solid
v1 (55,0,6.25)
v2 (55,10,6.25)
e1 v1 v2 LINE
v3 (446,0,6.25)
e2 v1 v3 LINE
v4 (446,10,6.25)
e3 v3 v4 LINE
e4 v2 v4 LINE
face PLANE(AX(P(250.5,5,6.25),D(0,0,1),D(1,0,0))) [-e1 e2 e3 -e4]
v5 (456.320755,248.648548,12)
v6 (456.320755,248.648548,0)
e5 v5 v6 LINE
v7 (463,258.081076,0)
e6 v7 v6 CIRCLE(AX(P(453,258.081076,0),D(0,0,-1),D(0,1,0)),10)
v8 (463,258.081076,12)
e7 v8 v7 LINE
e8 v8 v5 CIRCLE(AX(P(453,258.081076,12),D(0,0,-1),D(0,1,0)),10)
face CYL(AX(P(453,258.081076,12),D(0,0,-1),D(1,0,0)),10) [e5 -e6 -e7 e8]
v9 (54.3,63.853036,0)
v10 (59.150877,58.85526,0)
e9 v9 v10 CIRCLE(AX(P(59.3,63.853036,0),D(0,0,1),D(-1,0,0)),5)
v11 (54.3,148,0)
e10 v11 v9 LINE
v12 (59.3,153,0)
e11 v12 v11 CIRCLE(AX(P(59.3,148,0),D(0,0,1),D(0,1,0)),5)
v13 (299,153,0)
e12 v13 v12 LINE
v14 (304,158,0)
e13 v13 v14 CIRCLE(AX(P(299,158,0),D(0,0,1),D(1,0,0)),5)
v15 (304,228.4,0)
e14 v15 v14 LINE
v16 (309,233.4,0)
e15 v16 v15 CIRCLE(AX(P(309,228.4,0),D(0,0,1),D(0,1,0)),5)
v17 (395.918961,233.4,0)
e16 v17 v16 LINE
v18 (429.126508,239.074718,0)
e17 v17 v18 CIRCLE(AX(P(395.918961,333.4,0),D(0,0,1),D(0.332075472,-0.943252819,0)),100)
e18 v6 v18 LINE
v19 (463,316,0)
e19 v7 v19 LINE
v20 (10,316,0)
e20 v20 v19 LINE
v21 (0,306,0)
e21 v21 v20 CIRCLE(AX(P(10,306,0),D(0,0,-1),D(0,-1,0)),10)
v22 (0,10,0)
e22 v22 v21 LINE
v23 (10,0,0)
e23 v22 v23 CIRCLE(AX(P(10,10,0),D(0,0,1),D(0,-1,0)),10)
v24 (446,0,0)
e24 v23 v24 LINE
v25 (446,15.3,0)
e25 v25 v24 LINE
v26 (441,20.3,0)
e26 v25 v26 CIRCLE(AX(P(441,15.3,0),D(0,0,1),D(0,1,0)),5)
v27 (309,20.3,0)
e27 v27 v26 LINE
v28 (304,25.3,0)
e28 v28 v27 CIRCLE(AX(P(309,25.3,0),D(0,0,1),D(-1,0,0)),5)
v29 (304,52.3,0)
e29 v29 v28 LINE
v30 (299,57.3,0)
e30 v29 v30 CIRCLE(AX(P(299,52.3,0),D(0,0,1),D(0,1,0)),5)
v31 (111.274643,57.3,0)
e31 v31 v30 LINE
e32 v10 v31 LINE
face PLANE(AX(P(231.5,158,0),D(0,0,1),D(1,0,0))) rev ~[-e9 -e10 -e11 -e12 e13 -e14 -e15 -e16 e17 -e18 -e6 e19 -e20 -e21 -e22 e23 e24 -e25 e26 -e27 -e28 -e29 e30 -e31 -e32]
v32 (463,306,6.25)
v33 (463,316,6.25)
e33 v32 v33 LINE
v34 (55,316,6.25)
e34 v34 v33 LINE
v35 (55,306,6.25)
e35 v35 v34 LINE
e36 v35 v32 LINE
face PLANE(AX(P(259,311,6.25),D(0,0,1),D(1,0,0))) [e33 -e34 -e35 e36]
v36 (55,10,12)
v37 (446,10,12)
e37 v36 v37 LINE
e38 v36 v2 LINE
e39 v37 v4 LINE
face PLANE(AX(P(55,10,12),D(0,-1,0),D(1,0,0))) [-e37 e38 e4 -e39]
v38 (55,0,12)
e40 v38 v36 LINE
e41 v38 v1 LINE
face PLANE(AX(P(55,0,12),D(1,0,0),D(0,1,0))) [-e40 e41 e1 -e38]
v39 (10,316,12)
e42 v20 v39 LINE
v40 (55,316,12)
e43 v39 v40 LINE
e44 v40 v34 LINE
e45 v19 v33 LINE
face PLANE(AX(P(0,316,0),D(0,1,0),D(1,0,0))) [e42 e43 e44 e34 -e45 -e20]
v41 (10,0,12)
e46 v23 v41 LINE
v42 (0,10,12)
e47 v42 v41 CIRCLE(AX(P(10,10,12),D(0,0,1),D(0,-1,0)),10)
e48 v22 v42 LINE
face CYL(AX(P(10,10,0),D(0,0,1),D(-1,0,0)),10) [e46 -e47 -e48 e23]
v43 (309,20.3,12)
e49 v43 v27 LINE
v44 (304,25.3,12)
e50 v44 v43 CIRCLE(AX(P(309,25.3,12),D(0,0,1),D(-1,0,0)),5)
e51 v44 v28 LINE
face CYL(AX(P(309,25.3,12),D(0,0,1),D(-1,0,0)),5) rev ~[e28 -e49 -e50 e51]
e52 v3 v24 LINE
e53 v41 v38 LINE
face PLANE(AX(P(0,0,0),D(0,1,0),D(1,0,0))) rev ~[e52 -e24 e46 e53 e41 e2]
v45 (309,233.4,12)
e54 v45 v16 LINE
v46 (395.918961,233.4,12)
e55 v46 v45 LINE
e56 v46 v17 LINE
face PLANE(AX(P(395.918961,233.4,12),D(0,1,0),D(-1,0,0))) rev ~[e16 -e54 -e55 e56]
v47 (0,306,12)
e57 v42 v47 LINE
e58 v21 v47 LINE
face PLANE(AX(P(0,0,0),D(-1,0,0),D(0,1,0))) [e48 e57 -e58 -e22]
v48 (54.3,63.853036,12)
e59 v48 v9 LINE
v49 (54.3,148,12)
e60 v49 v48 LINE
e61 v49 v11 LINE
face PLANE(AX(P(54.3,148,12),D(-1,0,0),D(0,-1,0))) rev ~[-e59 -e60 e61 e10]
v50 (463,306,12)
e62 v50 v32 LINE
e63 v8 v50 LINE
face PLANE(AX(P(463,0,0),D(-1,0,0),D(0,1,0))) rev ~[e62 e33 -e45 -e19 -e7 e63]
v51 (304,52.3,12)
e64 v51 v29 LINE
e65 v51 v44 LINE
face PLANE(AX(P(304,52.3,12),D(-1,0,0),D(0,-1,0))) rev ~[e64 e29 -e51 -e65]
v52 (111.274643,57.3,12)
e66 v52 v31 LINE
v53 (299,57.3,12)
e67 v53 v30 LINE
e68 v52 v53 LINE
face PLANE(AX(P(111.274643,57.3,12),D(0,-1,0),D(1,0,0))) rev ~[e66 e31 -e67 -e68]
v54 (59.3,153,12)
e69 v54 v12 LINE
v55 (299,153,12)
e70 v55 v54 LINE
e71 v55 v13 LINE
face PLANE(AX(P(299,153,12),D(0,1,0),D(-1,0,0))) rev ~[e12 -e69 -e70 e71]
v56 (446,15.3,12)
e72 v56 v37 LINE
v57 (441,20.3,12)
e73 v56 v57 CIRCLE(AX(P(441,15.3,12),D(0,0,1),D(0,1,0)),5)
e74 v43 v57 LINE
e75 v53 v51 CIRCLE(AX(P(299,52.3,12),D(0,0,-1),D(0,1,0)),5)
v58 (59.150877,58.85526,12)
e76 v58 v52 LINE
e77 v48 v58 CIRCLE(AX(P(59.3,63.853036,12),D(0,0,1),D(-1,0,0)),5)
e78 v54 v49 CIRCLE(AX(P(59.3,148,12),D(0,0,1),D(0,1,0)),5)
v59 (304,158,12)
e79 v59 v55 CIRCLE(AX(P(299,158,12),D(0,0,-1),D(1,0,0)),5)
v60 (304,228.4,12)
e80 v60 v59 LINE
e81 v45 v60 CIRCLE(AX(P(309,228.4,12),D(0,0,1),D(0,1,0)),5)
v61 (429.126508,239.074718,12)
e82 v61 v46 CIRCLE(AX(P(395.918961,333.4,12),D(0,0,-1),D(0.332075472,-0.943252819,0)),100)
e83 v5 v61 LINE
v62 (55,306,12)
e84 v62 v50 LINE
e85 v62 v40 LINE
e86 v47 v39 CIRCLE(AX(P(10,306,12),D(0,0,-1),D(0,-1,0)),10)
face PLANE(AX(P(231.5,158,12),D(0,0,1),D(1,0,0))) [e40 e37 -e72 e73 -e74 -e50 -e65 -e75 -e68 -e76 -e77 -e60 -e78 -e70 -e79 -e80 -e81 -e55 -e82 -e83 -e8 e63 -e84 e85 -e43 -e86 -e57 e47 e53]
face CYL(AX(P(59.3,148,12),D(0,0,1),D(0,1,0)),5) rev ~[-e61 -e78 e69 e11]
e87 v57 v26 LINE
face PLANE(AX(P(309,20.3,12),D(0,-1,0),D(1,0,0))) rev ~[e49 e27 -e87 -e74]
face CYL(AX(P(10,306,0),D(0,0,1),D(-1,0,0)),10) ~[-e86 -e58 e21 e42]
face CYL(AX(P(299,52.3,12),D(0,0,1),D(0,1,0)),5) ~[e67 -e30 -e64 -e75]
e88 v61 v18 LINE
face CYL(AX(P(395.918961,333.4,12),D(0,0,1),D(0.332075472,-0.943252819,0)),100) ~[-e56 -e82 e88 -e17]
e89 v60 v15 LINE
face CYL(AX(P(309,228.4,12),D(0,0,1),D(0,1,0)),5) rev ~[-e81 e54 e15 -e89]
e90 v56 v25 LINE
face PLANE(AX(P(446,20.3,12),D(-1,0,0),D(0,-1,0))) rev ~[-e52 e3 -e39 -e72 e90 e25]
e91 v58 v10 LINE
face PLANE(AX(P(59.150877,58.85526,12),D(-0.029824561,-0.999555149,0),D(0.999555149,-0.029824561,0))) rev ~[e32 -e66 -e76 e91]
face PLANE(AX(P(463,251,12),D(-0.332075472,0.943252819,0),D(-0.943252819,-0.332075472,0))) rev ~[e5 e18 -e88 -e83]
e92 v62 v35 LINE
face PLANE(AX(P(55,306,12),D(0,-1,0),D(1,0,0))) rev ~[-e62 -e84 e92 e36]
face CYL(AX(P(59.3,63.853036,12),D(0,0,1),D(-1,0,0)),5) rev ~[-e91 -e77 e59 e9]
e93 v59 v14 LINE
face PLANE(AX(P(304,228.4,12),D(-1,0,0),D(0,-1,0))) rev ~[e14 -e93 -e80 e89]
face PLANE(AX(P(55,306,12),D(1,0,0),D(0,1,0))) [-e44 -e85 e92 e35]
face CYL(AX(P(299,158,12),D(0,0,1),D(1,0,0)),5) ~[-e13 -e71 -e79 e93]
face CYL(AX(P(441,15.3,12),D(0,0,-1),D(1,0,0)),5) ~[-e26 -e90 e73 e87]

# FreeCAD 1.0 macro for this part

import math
import FreeCAD as App
import Part
import Sketcher
from FreeCAD import Vector
Q = App.Units.Quantity


def edges_at(feature, points):
    """Names of the edges that pass closest to the given points."""
    edges = feature.Shape.Edges
    near = lambda p: min(range(len(edges)), key=lambda i: edges[i].distToShape(Part.Vertex(*p))[0])
    return sorted({f"Edge{near(p) + 1}" for p in points})


def add_polygon(sketch, points):
    """Adds a closed chain of lines whose ends are joined by coincident constraints."""
    first, n = sketch.GeometryCount, len(points)
    for a, b in zip(points, points[1:] + points[:1]):
        sketch.addGeometry(Part.LineSegment(App.Vector(*a, 0), App.Vector(*b, 0)), False)
    for i in range(n):
        sketch.addConstraint(Sketcher.Constraint("Coincident", first + i, 2, first + (i + 1) % n, 1))

doc = App.newDocument("Part")
body = doc.addObject("PartDesign::Body", "Body")

sketch1 = body.newObject("Sketcher::SketchObject", "Sketch")
sketch1.AttachmentSupport = (doc.getObject("XY_Plane"), [""])
sketch1.MapMode = "FlatFace"
add_polygon(sketch1, [(0, 316), (0, 0), (463, 0), (463, 316)])
sketch1.addConstraint([
    Sketcher.Constraint("Vertical", 0),
    Sketcher.Constraint("Horizontal", 1),
    Sketcher.Constraint("Vertical", 2),
    Sketcher.Constraint("Horizontal", 3),
    Sketcher.Constraint("Coincident", 0, 2, -1, 1),
    Sketcher.Constraint("DistanceX", 1, 1, 1, 2, Q("463 mm")),
    Sketcher.Constraint("DistanceY", 0, 2, 0, 1, Q("316 mm")),
])
pad1 = body.newObject("PartDesign::Pad", "Pad")
pad1.Profile = sketch1
pad1.Length = 12

sketch2 = body.newObject("Sketcher::SketchObject", "Sketch001")
sketch2.AttachmentSupport = (doc.getObject("XY_Plane"), [""])
sketch2.MapMode = "FlatFace"
sketch2.AttachmentOffset = App.Placement(Vector(0, 0, 12), App.Rotation())
sketch2.addGeometry([
    Part.LineSegment(Vector(396, 233, 0), Vector(309, 233, 0)),
    Part.ArcOfCircle(Part.Circle(Vector(309, 228, 0), Vector(0, 0, 1), 5), math.radians(90), math.radians(180)),
    Part.LineSegment(Vector(304, 228, 0), Vector(304, 158, 0)),
    Part.ArcOfCircle(Part.Circle(Vector(299, 158, 0), Vector(0, 0, 1), 5), math.radians(-90), math.radians(0)),
    Part.LineSegment(Vector(299, 153, 0), Vector(59, 153, 0)),
    Part.ArcOfCircle(Part.Circle(Vector(59, 148, 0), Vector(0, 0, 1), 5), math.radians(90), math.radians(180)),
    Part.LineSegment(Vector(54, 148, 0), Vector(54, 64, 0)),
    Part.ArcOfCircle(Part.Circle(Vector(59, 64, 0), Vector(0, 0, 1), 5), math.radians(180), math.radians(268)),
    Part.LineSegment(Vector(59, 59, 0), Vector(111, 57, 0)),
    Part.LineSegment(Vector(111, 57, 0), Vector(299, 57, 0)),
    Part.ArcOfCircle(Part.Circle(Vector(299, 52, 0), Vector(0, 0, 1), 5), math.radians(0), math.radians(90)),
    Part.LineSegment(Vector(304, 52, 0), Vector(304, 25, 0)),
    Part.ArcOfCircle(Part.Circle(Vector(309, 25, 0), Vector(0, 0, 1), 5), math.radians(180), math.radians(270)),
    Part.LineSegment(Vector(309, 20, 0), Vector(446, 20, 0)),
    Part.LineSegment(Vector(446, 20, 0), Vector(446, 0, 0)),
    Part.LineSegment(Vector(446, 0, 0), Vector(463, 0, 0)),
    Part.LineSegment(Vector(463, 0, 0), Vector(463, 251, 0)),
    Part.LineSegment(Vector(463, 251, 0), Vector(429, 239, 0)),
    Part.ArcOfCircle(Part.Circle(Vector(396, 333, 0), Vector(0, 0, 1), 100), math.radians(-90), math.radians(-70.61)),
], False)
sketch2.addConstraint([
    Sketcher.Constraint("Tangent", 0, 2, 1, 1),
    Sketcher.Constraint("Tangent", 1, 2, 2, 1),
    Sketcher.Constraint("Tangent", 2, 2, 3, 2),
    Sketcher.Constraint("Tangent", 3, 1, 4, 1),
    Sketcher.Constraint("Tangent", 4, 2, 5, 1),
    Sketcher.Constraint("Tangent", 5, 2, 6, 1),
    Sketcher.Constraint("Tangent", 6, 2, 7, 1),
    Sketcher.Constraint("Tangent", 7, 2, 8, 1),
    Sketcher.Constraint("Coincident", 8, 2, 9, 1),
    Sketcher.Constraint("Tangent", 9, 2, 10, 2),
    Sketcher.Constraint("Tangent", 10, 1, 11, 1),
    Sketcher.Constraint("Tangent", 11, 2, 12, 1),
    Sketcher.Constraint("Tangent", 12, 2, 13, 1),
    Sketcher.Constraint("Coincident", 13, 2, 14, 1),
    Sketcher.Constraint("Coincident", 14, 2, 15, 1),
    Sketcher.Constraint("Coincident", 15, 2, 16, 1),
    Sketcher.Constraint("Coincident", 16, 2, 17, 1),
    Sketcher.Constraint("Tangent", 17, 2, 18, 2),
    Sketcher.Constraint("Tangent", 18, 1, 0, 1),
    Sketcher.Constraint("Horizontal", 0),
    Sketcher.Constraint("Vertical", 2),
    Sketcher.Constraint("Horizontal", 4),
    Sketcher.Constraint("Vertical", 6),
    Sketcher.Constraint("Horizontal", 9),
    Sketcher.Constraint("Vertical", 11),
    Sketcher.Constraint("Horizontal", 13),
    Sketcher.Constraint("Vertical", 14),
    Sketcher.Constraint("Horizontal", 15),
    Sketcher.Constraint("Vertical", 16),
    Sketcher.Constraint("Equal", 1, 3),
    Sketcher.Constraint("Equal", 3, 5),
    Sketcher.Constraint("Equal", 5, 7),
    Sketcher.Constraint("Equal", 7, 10),
    Sketcher.Constraint("Equal", 10, 12),
    Sketcher.Constraint("PointOnObject", 14, 2, -1),
    Sketcher.Constraint("Vertical", 3, 3, 10, 3),
    Sketcher.Constraint("Radius", 1, Q("5 mm")),
    Sketcher.Constraint("Radius", 18, Q("100 mm")),
    Sketcher.Constraint("DistanceX", 13, 1, 13, 2, Q("137 mm")),
    Sketcher.Constraint("DistanceX", 15, 1, 15, 2, Q("17 mm")),
    Sketcher.Constraint("DistanceY", 11, 2, 11, 1, Q("27 mm")),
    Sketcher.Constraint("DistanceY", 16, 1, 16, 2, Q("251 mm")),
    Sketcher.Constraint("DistanceX", 4, 2, 4, 1, Q("239.7 mm")),
    Sketcher.Constraint("DistanceY", 2, 2, 2, 1, Q("70.4 mm")),
    Sketcher.Constraint("DistanceY", 14, 2, 14, 1, Q("20.3 mm")),
    Sketcher.Constraint("DistanceX", -1, 1, 1, 3, Q("309 mm")),
    Sketcher.Constraint("DistanceY", -1, 1, 3, 3, Q("158 mm")),
    Sketcher.Constraint("DistanceX", 0, 2, 0, 1, Q("86.918961 mm")),
    Sketcher.Constraint("DistanceX", 9, 1, 9, 2, Q("187.725357 mm")),
    Sketcher.Constraint("DistanceY", 6, 2, 6, 1, Q("84.146964 mm")),
])
pocket1 = body.newObject("PartDesign::Pocket", "Pocket")
pocket1.Profile = sketch2
pocket1.Type = "ThroughAll"

sketch3 = body.newObject("Sketcher::SketchObject", "Sketch002")
sketch3.AttachmentSupport = (doc.getObject("XY_Plane"), [""])
sketch3.MapMode = "FlatFace"
sketch3.AttachmentOffset = App.Placement(Vector(0, 0, 12), App.Rotation())
add_polygon(sketch3, [(55, 316), (55, 306), (463, 306), (463, 316)])
add_polygon(sketch3, [(55, 10), (55, 0), (446, 0), (446, 10)])
sketch3.addConstraint([
    Sketcher.Constraint("Vertical", 0),
    Sketcher.Constraint("Horizontal", 1),
    Sketcher.Constraint("Vertical", 2),
    Sketcher.Constraint("Horizontal", 3),
    Sketcher.Constraint("Vertical", 4),
    Sketcher.Constraint("Horizontal", 5),
    Sketcher.Constraint("Vertical", 6),
    Sketcher.Constraint("Horizontal", 7),
    Sketcher.Constraint("PointOnObject", 4, 2, -1),
    Sketcher.Constraint("Vertical", 3, 2, 4, 2),
    Sketcher.Constraint("Equal", 2, 4),
    Sketcher.Constraint("DistanceX", 1, 1, 1, 2, Q("408 mm")),
    Sketcher.Constraint("DistanceX", 5, 1, 5, 2, Q("391 mm")),
    Sketcher.Constraint("DistanceY", 0, 2, 0, 1, Q("10 mm")),
    Sketcher.Constraint("DistanceX", -1, 1, 0, 2, Q("55 mm")),
    Sketcher.Constraint("DistanceY", -1, 1, 0, 2, Q("306 mm")),
])
pocket2 = body.newObject("PartDesign::Pocket", "Pocket001")
pocket2.Profile = sketch3
pocket2.Length = 5.75
doc.recompute()

fillet = body.newObject("PartDesign::Fillet", "Fillet")
fillet.Base = (pocket2, edges_at(pocket2, [(0, 316, 6), (0, 0, 6), (463, 251, 6)]))
fillet.Radius = 10
doc.recompute()

fillet2 = body.newObject("PartDesign::Fillet", "Fillet001")
fillet2.Base = (fillet, edges_at(fillet, [(446, 20.3, 6)]))
fillet2.Radius = 5

doc.recompute()
